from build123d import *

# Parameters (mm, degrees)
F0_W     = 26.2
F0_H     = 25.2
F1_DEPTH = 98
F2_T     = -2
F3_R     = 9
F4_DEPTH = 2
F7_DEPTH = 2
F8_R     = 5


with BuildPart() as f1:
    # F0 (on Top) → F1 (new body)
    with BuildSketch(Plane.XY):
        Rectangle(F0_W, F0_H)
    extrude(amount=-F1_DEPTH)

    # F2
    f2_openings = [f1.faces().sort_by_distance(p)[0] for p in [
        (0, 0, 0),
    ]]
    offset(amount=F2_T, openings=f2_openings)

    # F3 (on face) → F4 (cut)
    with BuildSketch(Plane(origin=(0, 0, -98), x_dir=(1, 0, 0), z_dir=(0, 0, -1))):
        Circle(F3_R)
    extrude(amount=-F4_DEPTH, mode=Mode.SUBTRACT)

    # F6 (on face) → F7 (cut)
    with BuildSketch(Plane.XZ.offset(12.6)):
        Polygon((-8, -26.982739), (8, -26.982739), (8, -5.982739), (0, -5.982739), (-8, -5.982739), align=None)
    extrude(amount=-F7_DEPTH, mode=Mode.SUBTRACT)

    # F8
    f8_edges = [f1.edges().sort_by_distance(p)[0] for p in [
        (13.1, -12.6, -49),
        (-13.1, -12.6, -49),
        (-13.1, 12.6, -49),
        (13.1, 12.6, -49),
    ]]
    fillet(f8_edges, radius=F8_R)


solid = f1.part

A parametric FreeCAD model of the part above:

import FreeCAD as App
import Part
import Sketcher
from FreeCAD import Vector


def edges_at(feature, points):
    """Names of the edges that pass closest to the given points."""
    edges = feature.Shape.Edges
    near = lambda p: min(range(len(edges)), key=lambda i: edges[i].distToShape(Part.Vertex(*p))[0])
    return sorted({f"Edge{near(p) + 1}" for p in points})


def faces_at(feature, points):
    """Names of the faces that lie closest to the given points."""
    faces = feature.Shape.Faces
    near = lambda p: min(range(len(faces)), key=lambda i: faces[i].distToShape(Part.Vertex(*p))[0])
    return sorted({f"Face{near(p) + 1}" for p in points})


def add_polygon(sketch, points):
    """Adds a closed chain of lines whose ends are joined by coincident constraints."""
    first, n = sketch.GeometryCount, len(points)
    for a, b in zip(points, points[1:] + points[:1]):
        sketch.addGeometry(Part.LineSegment(App.Vector(*a, 0), App.Vector(*b, 0)), False)
    for i in range(n):
        sketch.addConstraint(Sketcher.Constraint("Coincident", first + i, 2, first + (i + 1) % n, 1))

doc = App.newDocument("Part")
params = doc.addObject("Spreadsheet::Sheet", "Params")
for row, (alias, value) in enumerate([
    ("sketch1_width", "26.2 mm"),
    ("sketch1_height", "25.2 mm"),
    ("pad1_length", "98 mm"),
    ("thickness_wall", "2 mm"),
    ("sketch2_diameter", "18 mm"),
    ("pocket1_length", "2 mm"),
    ("sketch3_width", "16 mm"),
    ("sketch3_height", "21 mm"),
    ("pocket2_length", "2 mm"),
    ("fillet_radius", "5 mm"),
], start=1):
    params.set(f"A{row}", alias)
    params.set(f"B{row}", "=" + value)
    params.setAlias(f"B{row}", alias)

body = doc.addObject("PartDesign::Body", "Body")

# Sketch on XY plane
sketch1 = body.newObject("Sketcher::SketchObject", "Sketch")
sketch1.AttachmentSupport = (doc.getObject("XY_Plane"), [""])
sketch1.MapMode = "FlatFace"
add_polygon(sketch1, [(-13.1, 12.6), (-13.1, -12.6), (13.1, -12.6), (13.1, 12.6)])  # lines 0-3
sketch1.addConstraint(Sketcher.Constraint("Vertical", 0))
sketch1.addConstraint(Sketcher.Constraint("Horizontal", 1))
sketch1.addConstraint(Sketcher.Constraint("Vertical", 2))
sketch1.addConstraint(Sketcher.Constraint("Horizontal", 3))
sketch1.addConstraint(Sketcher.Constraint("Symmetric", 0, 2, 2, 2, -1, 1))
sketch1.addConstraint(Sketcher.Constraint("DistanceX", 1, 1, 1, 2, 26.2))
sketch1.addConstraint(Sketcher.Constraint("DistanceY", 0, 2, 0, 1, 25.2))
sketch1.setExpression("Constraints[9]", "Params.sketch1_width")
sketch1.setExpression("Constraints[10]", "Params.sketch1_height")
pad1 = body.newObject("PartDesign::Pad", "Pad")
pad1.Profile = sketch1
pad1.setExpression("Length", "Params.pad1_length")
pad1.Reversed = True
doc.recompute()

thickness = body.newObject("PartDesign::Thickness", "Thickness")
thickness.Base = (pad1, faces_at(pad1, [(0, 0, 0)]))
thickness.setExpression("Value", "Params.thickness_wall")
thickness.Reversed = True
thickness.Join = "Arc"

# Sketch on XY plane
sketch2 = body.newObject("Sketcher::SketchObject", "Sketch001")
sketch2.AttachmentSupport = (doc.getObject("XY_Plane"), [""])
sketch2.MapMode = "FlatFace"
sketch2.AttachmentOffset = App.Placement(Vector(0, 0, -98), App.Rotation())
sketch2.addGeometry(Part.Circle(Vector(0, 0, 0), Vector(0, 0, 1), 9), False)
sketch2.addConstraint(Sketcher.Constraint("Coincident", 0, 3, -1, 1))
sketch2.addConstraint(Sketcher.Constraint("Diameter", 0, 18.0))
sketch2.setExpression("Constraints[1]", "Params.sketch2_diameter")
pocket1 = body.newObject("PartDesign::Pocket", "Pocket")
pocket1.Profile = sketch2
pocket1.setExpression("Length", "Params.pocket1_length")
pocket1.Reversed = True

# Sketch on XZ plane
sketch3 = body.newObject("Sketcher::SketchObject", "Sketch002")
sketch3.AttachmentSupport = (doc.getObject("XZ_Plane"), [""])
sketch3.MapMode = "FlatFace"
sketch3.AttachmentOffset = App.Placement(Vector(0, 0, 12.6), App.Rotation())
add_polygon(sketch3, [(-8, -26.982739), (8, -26.982739), (8, -5.982739), (-8, -5.982739)])  # lines 0-3
sketch3.addConstraint(Sketcher.Constraint("Horizontal", 0))
sketch3.addConstraint(Sketcher.Constraint("Vertical", 1))
sketch3.addConstraint(Sketcher.Constraint("Horizontal", 2))
sketch3.addConstraint(Sketcher.Constraint("Vertical", 3))
sketch3.addConstraint(Sketcher.Constraint("DistanceX", 0, 1, 0, 2, 16.0))
sketch3.addConstraint(Sketcher.Constraint("DistanceY", 1, 1, 1, 2, 21.0))
sketch3.addConstraint(Sketcher.Constraint("DistanceX", -1, 1, 0, 2, 8.0))
sketch3.addConstraint(Sketcher.Constraint("DistanceY", 0, 2, -1, 1, 26.982739))
sketch3.setExpression("Constraints[8]", "Params.sketch3_width")
sketch3.setExpression("Constraints[9]", "Params.sketch3_height")
pocket2 = body.newObject("PartDesign::Pocket", "Pocket001")
pocket2.Profile = sketch3
pocket2.setExpression("Length", "Params.pocket2_length")
doc.recompute()

fillet = body.newObject("PartDesign::Fillet", "Fillet")
fillet.Base = (pocket2, edges_at(pocket2, [
    (13.1, -12.6, -49),
    (-13.1, -12.6, -49),
    (-13.1, 12.6, -49),
    (13.1, 12.6, -49),
]))
fillet.setExpression("Radius", "Params.fillet_radius")

doc.recompute()
